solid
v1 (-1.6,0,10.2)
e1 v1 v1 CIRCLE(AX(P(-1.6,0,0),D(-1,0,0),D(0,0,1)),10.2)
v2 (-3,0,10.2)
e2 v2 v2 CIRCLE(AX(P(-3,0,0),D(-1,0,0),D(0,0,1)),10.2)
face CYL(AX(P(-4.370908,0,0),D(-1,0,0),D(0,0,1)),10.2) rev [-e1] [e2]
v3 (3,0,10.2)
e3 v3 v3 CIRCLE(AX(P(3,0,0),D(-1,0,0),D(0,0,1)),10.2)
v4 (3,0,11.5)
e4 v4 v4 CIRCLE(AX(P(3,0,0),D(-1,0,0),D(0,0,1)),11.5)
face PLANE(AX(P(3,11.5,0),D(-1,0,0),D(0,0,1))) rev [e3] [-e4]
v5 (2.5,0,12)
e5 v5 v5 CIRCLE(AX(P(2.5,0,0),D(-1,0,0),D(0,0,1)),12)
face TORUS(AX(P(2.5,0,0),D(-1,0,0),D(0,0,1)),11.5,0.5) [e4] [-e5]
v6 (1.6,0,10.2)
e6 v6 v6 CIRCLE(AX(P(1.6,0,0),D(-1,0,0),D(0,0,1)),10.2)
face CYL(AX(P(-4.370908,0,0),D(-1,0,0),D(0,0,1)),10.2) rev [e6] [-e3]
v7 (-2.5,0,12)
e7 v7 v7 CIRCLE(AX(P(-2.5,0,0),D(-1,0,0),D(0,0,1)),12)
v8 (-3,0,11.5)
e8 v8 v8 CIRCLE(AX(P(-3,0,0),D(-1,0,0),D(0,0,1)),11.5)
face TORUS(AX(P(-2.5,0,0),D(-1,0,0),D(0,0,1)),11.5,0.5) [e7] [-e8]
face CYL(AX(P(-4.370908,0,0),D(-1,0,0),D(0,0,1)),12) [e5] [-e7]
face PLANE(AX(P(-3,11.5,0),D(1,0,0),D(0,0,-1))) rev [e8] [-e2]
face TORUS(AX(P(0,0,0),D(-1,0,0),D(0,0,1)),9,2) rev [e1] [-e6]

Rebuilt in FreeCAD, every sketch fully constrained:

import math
import FreeCAD as App
import Part
import Sketcher
from FreeCAD import Vector

doc = App.newDocument("Part")
body = doc.addObject("PartDesign::Body", "Body")

sketch1 = body.newObject("Sketcher::SketchObject", "Sketch")
sketch1.AttachmentSupport = (doc.getObject("XY_Plane"), [""])
sketch1.MapMode = "FlatFace"
sketch1.addGeometry([
    Part.LineSegment(Vector(1.6, 10.2, 0), Vector(3, 10.2, 0)),
    Part.LineSegment(Vector(3, 10.2, 0), Vector(3, 11.5, 0)),
    Part.ArcOfCircle(Part.Circle(Vector(2.5, 11.5, 0), Vector(0, 0, 1), 0.5), math.radians(0), math.radians(90)),
    Part.LineSegment(Vector(2.5, 12, 0), Vector(-2.5, 12, 0)),
    Part.ArcOfCircle(Part.Circle(Vector(-2.5, 11.5, 0), Vector(0, 0, 1), 0.5), math.radians(90), math.radians(180)),
    Part.LineSegment(Vector(-3, 11.5, 0), Vector(-3, 10.2, 0)),
    Part.LineSegment(Vector(-3, 10.2, 0), Vector(-1.6, 10.2, 0)),
    Part.ArcOfCircle(Part.Circle(Vector(0, 9, 0), Vector(0, 0, 1), 2), math.radians(37), math.radians(143)),
], False)
sketch1.addConstraint([
    Sketcher.Constraint("Coincident", 0, 2, 1, 1),
    Sketcher.Constraint("Tangent", 1, 2, 2, 1),
    Sketcher.Constraint("Tangent", 2, 2, 3, 1),
    Sketcher.Constraint("Tangent", 3, 2, 4, 1),
    Sketcher.Constraint("Tangent", 4, 2, 5, 1),
    Sketcher.Constraint("Coincident", 5, 2, 6, 1),
    Sketcher.Constraint("Coincident", 6, 2, 7, 2),
    Sketcher.Constraint("Coincident", 7, 1, 0, 1),
    Sketcher.Constraint("Horizontal", 0),
    Sketcher.Constraint("Vertical", 1),
    Sketcher.Constraint("Horizontal", 3),
    Sketcher.Constraint("Vertical", 5),
    Sketcher.Constraint("Horizontal", 6),
    Sketcher.Constraint("Equal", 2, 4),
    Sketcher.Constraint("Symmetric", 0, 2, 5, 2, -2),
    Sketcher.Constraint("PointOnObject", 7, 3, -2),
    Sketcher.Constraint("Radius", 7, 2.0),
    Sketcher.Constraint("Radius", 2, 0.5),
    Sketcher.Constraint("DistanceX", 3, 2, 3, 1, 5.0),
    Sketcher.Constraint("DistanceX", 0, 1, 0, 2, 1.4),
    Sketcher.Constraint("DistanceY", 1, 1, 1, 2, 1.3),
    Sketcher.Constraint("DistanceY", -1, 1, 7, 3, 9.0),
])
revolution = body.newObject("PartDesign::Revolution", "Revolution")
revolution.Profile = sketch1
revolution.ReferenceAxis = (sketch1, ["H_Axis"])
revolution.Angle = 360

doc.recompute()
